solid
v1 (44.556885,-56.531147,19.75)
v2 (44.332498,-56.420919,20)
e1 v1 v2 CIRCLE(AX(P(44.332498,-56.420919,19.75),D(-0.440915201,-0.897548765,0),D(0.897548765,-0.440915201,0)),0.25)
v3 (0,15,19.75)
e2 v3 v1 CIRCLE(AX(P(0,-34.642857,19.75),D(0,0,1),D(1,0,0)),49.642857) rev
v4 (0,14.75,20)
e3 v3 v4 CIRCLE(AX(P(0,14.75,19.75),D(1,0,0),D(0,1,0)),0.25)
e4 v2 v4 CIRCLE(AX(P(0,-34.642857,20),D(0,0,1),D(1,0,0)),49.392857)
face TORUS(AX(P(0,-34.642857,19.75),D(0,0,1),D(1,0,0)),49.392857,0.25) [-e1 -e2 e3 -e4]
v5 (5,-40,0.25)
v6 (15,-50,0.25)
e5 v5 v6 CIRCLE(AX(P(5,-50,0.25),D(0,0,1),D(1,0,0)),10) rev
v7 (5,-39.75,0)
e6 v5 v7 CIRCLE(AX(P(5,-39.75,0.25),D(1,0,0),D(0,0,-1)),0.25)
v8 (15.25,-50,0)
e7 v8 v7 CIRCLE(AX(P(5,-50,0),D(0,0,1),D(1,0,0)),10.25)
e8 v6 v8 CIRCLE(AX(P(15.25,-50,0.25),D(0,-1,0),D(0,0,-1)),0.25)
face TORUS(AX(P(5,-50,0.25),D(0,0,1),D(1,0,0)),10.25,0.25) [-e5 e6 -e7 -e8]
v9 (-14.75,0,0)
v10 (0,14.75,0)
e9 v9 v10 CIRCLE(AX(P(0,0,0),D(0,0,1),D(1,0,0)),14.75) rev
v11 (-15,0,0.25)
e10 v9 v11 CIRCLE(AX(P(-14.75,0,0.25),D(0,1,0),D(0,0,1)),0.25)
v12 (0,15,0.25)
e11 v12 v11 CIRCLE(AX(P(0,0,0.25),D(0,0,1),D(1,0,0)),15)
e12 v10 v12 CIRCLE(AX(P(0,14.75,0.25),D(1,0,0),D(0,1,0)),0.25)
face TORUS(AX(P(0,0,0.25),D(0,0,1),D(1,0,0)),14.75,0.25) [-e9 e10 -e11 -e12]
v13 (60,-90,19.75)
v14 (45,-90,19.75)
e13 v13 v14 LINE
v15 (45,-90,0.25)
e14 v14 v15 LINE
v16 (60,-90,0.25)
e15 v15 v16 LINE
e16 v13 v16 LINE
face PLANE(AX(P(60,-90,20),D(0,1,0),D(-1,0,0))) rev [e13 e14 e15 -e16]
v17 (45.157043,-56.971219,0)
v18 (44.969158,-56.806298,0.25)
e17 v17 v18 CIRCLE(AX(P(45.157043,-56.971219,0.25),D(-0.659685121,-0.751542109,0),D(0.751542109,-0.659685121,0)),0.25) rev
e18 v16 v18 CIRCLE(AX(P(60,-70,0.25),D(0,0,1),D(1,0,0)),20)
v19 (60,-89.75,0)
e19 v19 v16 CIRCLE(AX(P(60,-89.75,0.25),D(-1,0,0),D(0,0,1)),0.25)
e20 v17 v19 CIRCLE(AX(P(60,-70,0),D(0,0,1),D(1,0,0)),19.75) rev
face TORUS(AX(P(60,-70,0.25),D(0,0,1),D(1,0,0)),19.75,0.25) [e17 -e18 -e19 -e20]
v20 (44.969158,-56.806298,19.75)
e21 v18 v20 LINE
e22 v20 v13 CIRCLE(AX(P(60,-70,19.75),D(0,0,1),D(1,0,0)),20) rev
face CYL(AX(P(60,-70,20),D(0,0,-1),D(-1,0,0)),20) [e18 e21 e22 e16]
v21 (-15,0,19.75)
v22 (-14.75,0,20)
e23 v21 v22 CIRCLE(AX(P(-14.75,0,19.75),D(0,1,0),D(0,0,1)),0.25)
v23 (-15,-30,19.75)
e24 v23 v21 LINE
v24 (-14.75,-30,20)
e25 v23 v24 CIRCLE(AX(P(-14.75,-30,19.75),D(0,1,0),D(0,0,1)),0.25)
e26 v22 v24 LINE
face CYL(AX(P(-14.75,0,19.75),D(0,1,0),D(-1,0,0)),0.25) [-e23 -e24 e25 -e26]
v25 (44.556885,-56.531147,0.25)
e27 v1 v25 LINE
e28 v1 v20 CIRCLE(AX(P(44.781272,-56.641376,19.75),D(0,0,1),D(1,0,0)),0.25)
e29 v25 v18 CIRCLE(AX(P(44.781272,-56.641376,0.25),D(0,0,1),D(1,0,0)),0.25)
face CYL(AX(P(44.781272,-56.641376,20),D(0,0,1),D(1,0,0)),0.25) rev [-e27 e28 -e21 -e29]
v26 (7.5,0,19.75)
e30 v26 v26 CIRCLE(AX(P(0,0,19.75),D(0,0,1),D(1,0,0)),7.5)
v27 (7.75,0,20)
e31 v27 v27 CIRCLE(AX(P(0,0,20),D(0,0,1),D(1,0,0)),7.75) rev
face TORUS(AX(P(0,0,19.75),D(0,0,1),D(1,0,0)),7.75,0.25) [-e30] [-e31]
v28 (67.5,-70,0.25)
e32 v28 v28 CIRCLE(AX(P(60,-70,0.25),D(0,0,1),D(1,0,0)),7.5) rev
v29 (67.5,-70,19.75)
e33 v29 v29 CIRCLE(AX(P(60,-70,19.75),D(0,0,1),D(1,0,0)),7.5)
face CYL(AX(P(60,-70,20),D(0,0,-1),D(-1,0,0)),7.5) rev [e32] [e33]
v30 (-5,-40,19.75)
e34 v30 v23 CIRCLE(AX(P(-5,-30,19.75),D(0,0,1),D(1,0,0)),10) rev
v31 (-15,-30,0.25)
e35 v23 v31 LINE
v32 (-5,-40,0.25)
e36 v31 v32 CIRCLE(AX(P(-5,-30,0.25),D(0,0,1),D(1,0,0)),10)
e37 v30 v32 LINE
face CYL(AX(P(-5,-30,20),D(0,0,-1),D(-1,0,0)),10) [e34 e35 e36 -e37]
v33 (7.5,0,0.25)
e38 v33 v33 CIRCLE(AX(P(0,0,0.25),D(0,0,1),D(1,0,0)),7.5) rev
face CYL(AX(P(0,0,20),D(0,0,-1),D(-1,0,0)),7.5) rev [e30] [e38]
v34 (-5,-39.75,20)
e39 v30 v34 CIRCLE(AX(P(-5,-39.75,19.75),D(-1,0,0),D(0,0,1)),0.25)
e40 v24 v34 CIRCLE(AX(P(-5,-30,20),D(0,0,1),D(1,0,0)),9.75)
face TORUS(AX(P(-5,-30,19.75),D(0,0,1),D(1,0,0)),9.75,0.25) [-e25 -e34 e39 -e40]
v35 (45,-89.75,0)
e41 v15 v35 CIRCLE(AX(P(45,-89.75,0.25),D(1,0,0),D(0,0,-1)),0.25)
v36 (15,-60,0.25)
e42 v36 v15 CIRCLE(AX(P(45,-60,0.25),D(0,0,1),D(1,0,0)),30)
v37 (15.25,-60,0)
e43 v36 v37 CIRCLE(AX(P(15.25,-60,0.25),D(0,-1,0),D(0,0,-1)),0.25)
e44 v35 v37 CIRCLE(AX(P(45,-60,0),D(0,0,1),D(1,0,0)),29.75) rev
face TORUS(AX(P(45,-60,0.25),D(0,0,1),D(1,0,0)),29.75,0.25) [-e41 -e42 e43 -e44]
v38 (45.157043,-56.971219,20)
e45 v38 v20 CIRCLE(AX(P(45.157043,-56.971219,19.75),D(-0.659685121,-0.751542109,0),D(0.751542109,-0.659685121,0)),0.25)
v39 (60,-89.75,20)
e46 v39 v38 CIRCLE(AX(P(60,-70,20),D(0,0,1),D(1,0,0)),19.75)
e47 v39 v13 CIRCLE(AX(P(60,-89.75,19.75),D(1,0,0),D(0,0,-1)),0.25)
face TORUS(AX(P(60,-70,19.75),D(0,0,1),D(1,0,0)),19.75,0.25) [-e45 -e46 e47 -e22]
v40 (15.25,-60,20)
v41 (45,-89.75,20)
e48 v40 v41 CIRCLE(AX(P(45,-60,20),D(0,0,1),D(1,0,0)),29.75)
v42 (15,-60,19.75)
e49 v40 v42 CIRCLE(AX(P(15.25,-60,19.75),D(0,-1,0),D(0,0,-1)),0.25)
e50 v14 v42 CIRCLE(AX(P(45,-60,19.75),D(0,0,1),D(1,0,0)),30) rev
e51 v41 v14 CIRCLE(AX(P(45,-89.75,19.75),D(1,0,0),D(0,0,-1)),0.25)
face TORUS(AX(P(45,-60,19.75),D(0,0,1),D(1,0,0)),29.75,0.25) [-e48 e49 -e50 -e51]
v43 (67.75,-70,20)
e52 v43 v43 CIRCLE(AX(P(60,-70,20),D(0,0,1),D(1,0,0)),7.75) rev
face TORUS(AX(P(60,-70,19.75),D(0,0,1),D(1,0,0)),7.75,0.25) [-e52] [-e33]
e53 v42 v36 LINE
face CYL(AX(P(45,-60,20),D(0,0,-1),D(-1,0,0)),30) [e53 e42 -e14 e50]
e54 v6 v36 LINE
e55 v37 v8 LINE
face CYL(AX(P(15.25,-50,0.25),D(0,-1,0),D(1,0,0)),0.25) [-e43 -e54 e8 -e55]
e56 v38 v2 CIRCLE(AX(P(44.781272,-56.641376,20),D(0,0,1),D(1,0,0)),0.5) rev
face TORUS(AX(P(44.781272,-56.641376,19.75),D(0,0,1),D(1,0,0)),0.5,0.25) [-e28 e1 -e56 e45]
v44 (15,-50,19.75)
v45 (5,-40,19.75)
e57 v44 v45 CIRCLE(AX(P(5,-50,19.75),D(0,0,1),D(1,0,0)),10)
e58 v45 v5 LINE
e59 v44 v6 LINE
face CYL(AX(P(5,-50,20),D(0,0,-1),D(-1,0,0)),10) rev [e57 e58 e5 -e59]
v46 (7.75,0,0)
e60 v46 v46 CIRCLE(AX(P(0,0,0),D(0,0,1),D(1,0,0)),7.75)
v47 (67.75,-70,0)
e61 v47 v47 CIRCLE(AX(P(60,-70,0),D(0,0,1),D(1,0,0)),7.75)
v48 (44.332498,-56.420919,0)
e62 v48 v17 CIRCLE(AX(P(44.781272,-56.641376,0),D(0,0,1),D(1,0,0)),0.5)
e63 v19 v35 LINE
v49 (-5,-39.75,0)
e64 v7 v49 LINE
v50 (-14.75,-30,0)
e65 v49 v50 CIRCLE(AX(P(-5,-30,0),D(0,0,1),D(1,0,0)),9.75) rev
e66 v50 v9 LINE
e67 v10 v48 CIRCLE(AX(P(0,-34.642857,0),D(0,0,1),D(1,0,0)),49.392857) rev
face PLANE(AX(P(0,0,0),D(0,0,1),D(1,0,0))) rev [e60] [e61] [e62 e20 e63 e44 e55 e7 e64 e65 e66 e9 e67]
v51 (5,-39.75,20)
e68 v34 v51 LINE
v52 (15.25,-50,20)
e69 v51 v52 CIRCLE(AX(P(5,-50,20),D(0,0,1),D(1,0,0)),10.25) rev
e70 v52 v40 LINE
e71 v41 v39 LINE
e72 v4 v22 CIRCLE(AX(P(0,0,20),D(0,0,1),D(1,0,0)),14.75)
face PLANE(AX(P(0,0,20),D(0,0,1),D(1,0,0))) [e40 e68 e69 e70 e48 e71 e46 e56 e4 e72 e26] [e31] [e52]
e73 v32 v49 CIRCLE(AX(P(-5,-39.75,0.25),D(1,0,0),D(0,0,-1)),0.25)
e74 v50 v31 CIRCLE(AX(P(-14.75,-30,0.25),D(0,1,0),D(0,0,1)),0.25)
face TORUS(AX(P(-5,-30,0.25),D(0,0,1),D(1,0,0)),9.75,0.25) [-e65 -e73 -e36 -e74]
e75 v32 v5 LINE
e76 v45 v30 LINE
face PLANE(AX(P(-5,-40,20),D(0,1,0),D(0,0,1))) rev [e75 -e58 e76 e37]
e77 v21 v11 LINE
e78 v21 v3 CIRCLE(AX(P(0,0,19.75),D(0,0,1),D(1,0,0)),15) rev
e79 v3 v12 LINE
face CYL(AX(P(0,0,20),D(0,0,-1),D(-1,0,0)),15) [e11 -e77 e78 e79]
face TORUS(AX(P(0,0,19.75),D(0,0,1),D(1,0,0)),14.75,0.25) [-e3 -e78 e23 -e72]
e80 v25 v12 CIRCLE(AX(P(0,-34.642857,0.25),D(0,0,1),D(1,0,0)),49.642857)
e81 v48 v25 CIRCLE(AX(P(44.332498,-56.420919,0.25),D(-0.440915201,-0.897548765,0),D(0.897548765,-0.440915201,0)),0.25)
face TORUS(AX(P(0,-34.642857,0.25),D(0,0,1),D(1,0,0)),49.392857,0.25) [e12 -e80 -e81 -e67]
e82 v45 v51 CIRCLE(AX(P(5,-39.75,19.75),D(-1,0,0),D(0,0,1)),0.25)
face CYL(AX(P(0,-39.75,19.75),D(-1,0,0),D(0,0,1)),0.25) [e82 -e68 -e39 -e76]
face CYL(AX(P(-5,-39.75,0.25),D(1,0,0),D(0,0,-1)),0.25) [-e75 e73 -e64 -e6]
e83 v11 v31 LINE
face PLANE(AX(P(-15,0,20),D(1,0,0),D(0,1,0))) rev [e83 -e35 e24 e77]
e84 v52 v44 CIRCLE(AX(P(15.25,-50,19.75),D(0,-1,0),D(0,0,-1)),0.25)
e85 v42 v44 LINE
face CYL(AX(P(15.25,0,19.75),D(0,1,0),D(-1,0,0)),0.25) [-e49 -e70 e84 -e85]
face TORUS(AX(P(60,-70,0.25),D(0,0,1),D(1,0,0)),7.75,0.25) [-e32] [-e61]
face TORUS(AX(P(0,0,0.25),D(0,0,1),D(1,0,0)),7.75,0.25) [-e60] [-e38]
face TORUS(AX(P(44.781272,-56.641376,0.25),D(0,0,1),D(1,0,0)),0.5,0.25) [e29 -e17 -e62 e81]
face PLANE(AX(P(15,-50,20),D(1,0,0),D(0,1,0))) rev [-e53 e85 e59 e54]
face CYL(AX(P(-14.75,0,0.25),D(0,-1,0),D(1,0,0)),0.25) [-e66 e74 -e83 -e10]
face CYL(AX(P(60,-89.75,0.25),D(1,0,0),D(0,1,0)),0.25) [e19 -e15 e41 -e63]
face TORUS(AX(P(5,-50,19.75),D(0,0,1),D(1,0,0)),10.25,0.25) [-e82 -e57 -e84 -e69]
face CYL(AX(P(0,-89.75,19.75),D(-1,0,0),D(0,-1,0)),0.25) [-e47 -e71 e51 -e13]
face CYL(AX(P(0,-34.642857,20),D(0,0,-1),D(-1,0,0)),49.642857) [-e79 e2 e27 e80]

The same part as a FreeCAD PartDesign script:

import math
import FreeCAD as App
import Part
import Sketcher
from FreeCAD import Vector


def edges_at(feature, points):
    """Names of the edges that pass closest to the given points."""
    edges = feature.Shape.Edges
    near = lambda p: min(range(len(edges)), key=lambda i: edges[i].distToShape(Part.Vertex(*p))[0])
    return sorted({f"Edge{near(p) + 1}" for p in points})

doc = App.newDocument("Part")
body = doc.addObject("PartDesign::Body", "Body")

sketch1 = doc.addObject("Sketcher::SketchObject", "Sketch")
body.addObject(sketch1)
sketch1.AttachmentSupport = (doc.XY_Plane, [""])
sketch1.MapMode = "FlatFace"
sketch1.addGeometry([
    Part.LineSegment(Vector(-15, 0, 0), Vector(-15, -30, 0)),
    Part.ArcOfCircle(Part.Circle(Vector(-5, -30, 0), Vector(0, 0, 1), 10), math.radians(180), math.radians(270)),
    Part.LineSegment(Vector(-5, -40, 0), Vector(5, -40, 0)),
    Part.ArcOfCircle(Part.Circle(Vector(5, -50, 0), Vector(0, 0, 1), 10), math.radians(0), math.radians(90)),
    Part.LineSegment(Vector(15, -50, 0), Vector(15, -60, 0)),
    Part.ArcOfCircle(Part.Circle(Vector(45, -60, 0), Vector(0, 0, 1), 30), math.radians(180), math.radians(270)),
    Part.LineSegment(Vector(45, -90, 0), Vector(60, -90, 0)),
    Part.ArcOfCircle(Part.Circle(Vector(60, -70, 0), Vector(0, 0, 1), 20), math.radians(-90), math.radians(149.489763)),
    Part.ArcOfCircle(Part.Circle(Vector(0, -34.642857, 0), Vector(0, 0, 1), 49.642857), math.radians(-30.510237), math.radians(90)),
    Part.ArcOfCircle(Part.Circle(Vector(0, 0, 0), Vector(0, 0, 1), 15), math.radians(90), math.radians(180)),
    Part.Circle(Vector(60, -70, 0), Vector(0, 0, 1), 7.5),
    Part.Circle(Vector(0, 0, 0), Vector(0, 0, 1), 7.5),
], False)
sketch1.addConstraint([
    Sketcher.Constraint("Tangent", 0, 2, 1, 1),
    Sketcher.Constraint("Tangent", 1, 2, 2, 1),
    Sketcher.Constraint("Tangent", 2, 2, 3, 2),
    Sketcher.Constraint("Tangent", 3, 1, 4, 1),
    Sketcher.Constraint("Tangent", 4, 2, 5, 1),
    Sketcher.Constraint("Tangent", 5, 2, 6, 1),
    Sketcher.Constraint("Tangent", 6, 2, 7, 1),
    Sketcher.Constraint("Tangent", 7, 2, 8, 1),
    Sketcher.Constraint("Tangent", 8, 2, 9, 1),
    Sketcher.Constraint("Tangent", 9, 2, 0, 1),
    Sketcher.Constraint("Vertical", 0),
    Sketcher.Constraint("Horizontal", 2),
    Sketcher.Constraint("Vertical", 4),
    Sketcher.Constraint("Horizontal", 6),
    Sketcher.Constraint("Coincident", 9, 3, -1, 1),
    Sketcher.Constraint("Coincident", 11, 3, -1, 1),
    Sketcher.Constraint("Coincident", 10, 3, 7, 3),
    Sketcher.Constraint("Equal", 1, 3),
    Sketcher.Constraint("Equal", 10, 11),
    Sketcher.Constraint("PointOnObject", 8, 3, -2),
    Sketcher.Constraint("Equal", 2, 4),
    Sketcher.Constraint("Diameter", 10, 15.0),
    Sketcher.Constraint("Radius", 1, 10.0),
    Sketcher.Constraint("Radius", 5, 30.0),
    Sketcher.Constraint("Radius", 7, 20.0),
    Sketcher.Constraint("Radius", 9, 15.0),
    Sketcher.Constraint("DistanceX", 2, 1, 2, 2, 10.0),
    Sketcher.Constraint("DistanceX", 6, 1, 6, 2, 15.0),
    Sketcher.Constraint("DistanceY", 0, 2, 0, 1, 30.0),
])
pad1 = doc.addObject("PartDesign::Pad", "Pad")
body.addObject(pad1)
pad1.Profile = sketch1
pad1.Length = 20
doc.recompute()

fillet = doc.addObject("PartDesign::Fillet", "Fillet")
body.addObject(fillet)
fillet.Base = (pad1, edges_at(pad1, [
    (43.102, -10.013, 0),
    (77.365, -60.077, 0),
    (52.5, -90, 0),
    (23.787, -81.213, 0),
    (15, -55, 0),
    (12.071, -42.929, 0),
    (0, -40, 0),
    (-12.071, -37.071, 20),
    (-12.071, -37.071, 0),
    (-15, -15, 0),
    (-10.607, 10.607, 0),
    (0, -40, 20),
    (42.769, -59.846, 10),
    (12.071, -42.929, 20),
    (15, -55, 20),
    (-7.5, 0, 0),
    (-7.5, 0, 20),
    (23.787, -81.213, 20),
    (52.5, -70, 0),
    (52.5, -70, 20),
    (52.5, -90, 20),
    (77.365, -60.077, 20),
    (43.102, -10.013, 20),
    (-10.607, 10.607, 20),
    (-15, -15, 20),
]))
fillet.Radius = 0.25

doc.recompute()
